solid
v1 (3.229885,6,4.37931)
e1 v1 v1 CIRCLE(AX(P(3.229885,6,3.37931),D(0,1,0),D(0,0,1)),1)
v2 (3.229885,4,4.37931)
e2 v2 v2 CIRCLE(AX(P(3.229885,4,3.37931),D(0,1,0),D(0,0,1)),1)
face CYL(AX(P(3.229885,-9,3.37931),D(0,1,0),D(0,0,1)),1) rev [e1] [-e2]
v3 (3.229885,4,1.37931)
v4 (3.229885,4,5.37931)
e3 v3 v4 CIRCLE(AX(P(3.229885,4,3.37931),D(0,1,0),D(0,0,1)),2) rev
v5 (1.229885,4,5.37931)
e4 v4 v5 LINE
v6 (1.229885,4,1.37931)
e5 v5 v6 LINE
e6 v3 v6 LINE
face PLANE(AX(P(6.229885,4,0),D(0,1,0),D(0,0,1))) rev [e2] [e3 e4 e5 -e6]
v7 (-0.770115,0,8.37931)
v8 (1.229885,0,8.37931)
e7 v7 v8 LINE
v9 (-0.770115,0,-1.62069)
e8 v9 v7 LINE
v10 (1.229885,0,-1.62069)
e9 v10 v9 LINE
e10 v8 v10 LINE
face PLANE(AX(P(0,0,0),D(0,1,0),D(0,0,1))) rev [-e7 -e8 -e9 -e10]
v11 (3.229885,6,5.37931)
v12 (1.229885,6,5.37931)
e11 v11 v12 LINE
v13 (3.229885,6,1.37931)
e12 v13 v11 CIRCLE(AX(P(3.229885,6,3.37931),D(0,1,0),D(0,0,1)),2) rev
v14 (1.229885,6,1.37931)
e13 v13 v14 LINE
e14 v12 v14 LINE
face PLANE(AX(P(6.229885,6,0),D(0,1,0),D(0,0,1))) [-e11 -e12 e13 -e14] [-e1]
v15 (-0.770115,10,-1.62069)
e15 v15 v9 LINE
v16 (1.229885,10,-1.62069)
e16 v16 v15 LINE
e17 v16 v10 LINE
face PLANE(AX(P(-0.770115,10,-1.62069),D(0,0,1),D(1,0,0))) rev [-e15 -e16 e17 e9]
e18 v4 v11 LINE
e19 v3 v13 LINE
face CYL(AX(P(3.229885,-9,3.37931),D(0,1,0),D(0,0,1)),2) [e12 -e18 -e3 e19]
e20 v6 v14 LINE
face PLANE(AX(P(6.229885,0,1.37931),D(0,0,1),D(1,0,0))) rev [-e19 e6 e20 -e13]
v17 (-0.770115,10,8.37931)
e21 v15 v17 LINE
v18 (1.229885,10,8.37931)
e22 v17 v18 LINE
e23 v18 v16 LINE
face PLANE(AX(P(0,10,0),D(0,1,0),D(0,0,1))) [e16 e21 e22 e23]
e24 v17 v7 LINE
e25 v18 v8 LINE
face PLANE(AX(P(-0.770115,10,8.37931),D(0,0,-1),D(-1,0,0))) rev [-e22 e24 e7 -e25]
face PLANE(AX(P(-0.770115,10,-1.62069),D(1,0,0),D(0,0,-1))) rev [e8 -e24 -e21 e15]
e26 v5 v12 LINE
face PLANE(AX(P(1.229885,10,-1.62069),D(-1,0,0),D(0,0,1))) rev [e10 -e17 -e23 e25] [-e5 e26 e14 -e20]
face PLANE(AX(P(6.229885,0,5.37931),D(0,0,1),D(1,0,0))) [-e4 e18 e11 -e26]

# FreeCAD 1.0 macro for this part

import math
import FreeCAD as App
import Part
import Sketcher

doc = App.newDocument("Part")
body = doc.addObject("PartDesign::Body", "Body")

sketch1 = body.newObject("Sketcher::SketchObject", "Sketch")
sketch1.AttachmentSupport = (doc.getObject("XZ_Plane"), [""])
sketch1.MapMode = "FlatFace"
sketch1.addGeometry(Part.LineSegment(App.Vector(-0.8, -1.6, 0), App.Vector(-0.8, 8.4, 0)), False)
sketch1.addGeometry(Part.LineSegment(App.Vector(-0.8, 8.4, 0), App.Vector(1.2, 8.4, 0)), False)
sketch1.addGeometry(Part.LineSegment(App.Vector(1.2, 8.4, 0), App.Vector(1.2, -1.6, 0)), False)
sketch1.addGeometry(Part.LineSegment(App.Vector(1.2, -1.6, 0), App.Vector(-0.8, -1.6, 0)), False)
sketch1.addConstraint(Sketcher.Constraint("Coincident", 0, 2, 1, 1))
sketch1.addConstraint(Sketcher.Constraint("Coincident", 1, 2, 2, 1))
sketch1.addConstraint(Sketcher.Constraint("Coincident", 2, 2, 3, 1))
sketch1.addConstraint(Sketcher.Constraint("Coincident", 3, 2, 0, 1))
sketch1.addConstraint(Sketcher.Constraint("Vertical", 0))
sketch1.addConstraint(Sketcher.Constraint("Horizontal", 1))
sketch1.addConstraint(Sketcher.Constraint("Vertical", 2))
sketch1.addConstraint(Sketcher.Constraint("Horizontal", 3))
sketch1.addConstraint(Sketcher.Constraint("DistanceX", 1, 1, 1, 2, 2.0))
sketch1.addConstraint(Sketcher.Constraint("DistanceY", 0, 1, 0, 2, 10.0))
sketch1.addConstraint(Sketcher.Constraint("DistanceY", -1, 1, 0, 2, 8.37931))
sketch1.addConstraint(Sketcher.Constraint("DistanceX", 0, 2, -1, 1, 0.770115))
pad1 = body.newObject("PartDesign::Pad", "Pad")
pad1.Profile = sketch1
pad1.Length = 10
pad1.Reversed = True

sketch2 = body.newObject("Sketcher::SketchObject", "Sketch001")
sketch2.AttachmentSupport = (doc.getObject("YZ_Plane"), [""])
sketch2.MapMode = "FlatFace"
sketch2.AttachmentOffset = App.Placement(App.Vector(0, 0, 1.229885), App.Rotation())
sketch2.addGeometry(Part.LineSegment(App.Vector(6, 5.4, 0), App.Vector(4, 5.4, 0)), False)
sketch2.addGeometry(Part.LineSegment(App.Vector(4, 5.4, 0), App.Vector(4, 1.4, 0)), False)
sketch2.addGeometry(Part.LineSegment(App.Vector(4, 1.4, 0), App.Vector(6, 1.4, 0)), False)
sketch2.addGeometry(Part.LineSegment(App.Vector(6, 1.4, 0), App.Vector(6, 5.4, 0)), False)
sketch2.addConstraint(Sketcher.Constraint("Coincident", 0, 2, 1, 1))
sketch2.addConstraint(Sketcher.Constraint("Coincident", 1, 2, 2, 1))
sketch2.addConstraint(Sketcher.Constraint("Coincident", 2, 2, 3, 1))
sketch2.addConstraint(Sketcher.Constraint("Coincident", 3, 2, 0, 1))
sketch2.addConstraint(Sketcher.Constraint("Horizontal", 0))
sketch2.addConstraint(Sketcher.Constraint("Vertical", 1))
sketch2.addConstraint(Sketcher.Constraint("Horizontal", 2))
sketch2.addConstraint(Sketcher.Constraint("Vertical", 3))
sketch2.addConstraint(Sketcher.Constraint("DistanceX", 0, 2, 0, 1, 2.0))
sketch2.addConstraint(Sketcher.Constraint("DistanceY", 1, 2, 1, 1, 4.0))
sketch2.addConstraint(Sketcher.Constraint("DistanceX", -1, 1, 0, 2, 4.0))
sketch2.addConstraint(Sketcher.Constraint("DistanceY", -1, 1, 0, 2, 5.37931))
pad2 = body.newObject("PartDesign::Pad", "Pad001")
pad2.Profile = sketch2
pad2.Length = 5

sketch3 = body.newObject("Sketcher::SketchObject", "Sketch002")
sketch3.AttachmentSupport = (doc.getObject("XZ_Plane"), [""])
sketch3.MapMode = "FlatFace"
sketch3.AttachmentOffset = App.Placement(App.Vector(0, 0, -6), App.Rotation())
sketch3.addGeometry(Part.Circle(App.Vector(3.2, 3.4, 0), App.Vector(0, 0, 1), 1), False)
sketch3.addGeometry(Part.LineSegment(App.Vector(6.2, 1.4, 0), App.Vector(3.2, 1.4, 0)), False)
sketch3.addGeometry(Part.ArcOfCircle(Part.Circle(App.Vector(3.2, 3.4, 0), App.Vector(0, 0, 1), 2), math.radians(-90), math.radians(90)), False)
sketch3.addGeometry(Part.LineSegment(App.Vector(3.2, 5.4, 0), App.Vector(6.2, 5.4, 0)), False)
sketch3.addGeometry(Part.LineSegment(App.Vector(6.2, 5.4, 0), App.Vector(6.2, 1.4, 0)), False)
sketch3.addConstraint(Sketcher.Constraint("Tangent", 1, 2, 2, 1))
sketch3.addConstraint(Sketcher.Constraint("Tangent", 2, 2, 3, 1))
sketch3.addConstraint(Sketcher.Constraint("Coincident", 3, 2, 4, 1))
sketch3.addConstraint(Sketcher.Constraint("Coincident", 4, 2, 1, 1))
sketch3.addConstraint(Sketcher.Constraint("Horizontal", 1))
sketch3.addConstraint(Sketcher.Constraint("Horizontal", 3))
sketch3.addConstraint(Sketcher.Constraint("Vertical", 4))
sketch3.addConstraint(Sketcher.Constraint("Coincident", 2, 3, 0, 3))
sketch3.addConstraint(Sketcher.Constraint("Diameter", 0, 2.0))
sketch3.addConstraint(Sketcher.Constraint("Radius", 2, 2.0))
sketch3.addConstraint(Sketcher.Constraint("DistanceX", 1, 2, 1, 1, 3.0))
sketch3.addConstraint(Sketcher.Constraint("DistanceY", -1, 1, 0, 3, 3.37931))
sketch3.addConstraint(Sketcher.Constraint("DistanceX", -1, 1, 0, 3, 3.229885))
pocket1 = body.newObject("PartDesign::Pocket", "Pocket")
pocket1.Profile = sketch3
pocket1.Length = 15
pocket1.Reversed = True

doc.recompute()
